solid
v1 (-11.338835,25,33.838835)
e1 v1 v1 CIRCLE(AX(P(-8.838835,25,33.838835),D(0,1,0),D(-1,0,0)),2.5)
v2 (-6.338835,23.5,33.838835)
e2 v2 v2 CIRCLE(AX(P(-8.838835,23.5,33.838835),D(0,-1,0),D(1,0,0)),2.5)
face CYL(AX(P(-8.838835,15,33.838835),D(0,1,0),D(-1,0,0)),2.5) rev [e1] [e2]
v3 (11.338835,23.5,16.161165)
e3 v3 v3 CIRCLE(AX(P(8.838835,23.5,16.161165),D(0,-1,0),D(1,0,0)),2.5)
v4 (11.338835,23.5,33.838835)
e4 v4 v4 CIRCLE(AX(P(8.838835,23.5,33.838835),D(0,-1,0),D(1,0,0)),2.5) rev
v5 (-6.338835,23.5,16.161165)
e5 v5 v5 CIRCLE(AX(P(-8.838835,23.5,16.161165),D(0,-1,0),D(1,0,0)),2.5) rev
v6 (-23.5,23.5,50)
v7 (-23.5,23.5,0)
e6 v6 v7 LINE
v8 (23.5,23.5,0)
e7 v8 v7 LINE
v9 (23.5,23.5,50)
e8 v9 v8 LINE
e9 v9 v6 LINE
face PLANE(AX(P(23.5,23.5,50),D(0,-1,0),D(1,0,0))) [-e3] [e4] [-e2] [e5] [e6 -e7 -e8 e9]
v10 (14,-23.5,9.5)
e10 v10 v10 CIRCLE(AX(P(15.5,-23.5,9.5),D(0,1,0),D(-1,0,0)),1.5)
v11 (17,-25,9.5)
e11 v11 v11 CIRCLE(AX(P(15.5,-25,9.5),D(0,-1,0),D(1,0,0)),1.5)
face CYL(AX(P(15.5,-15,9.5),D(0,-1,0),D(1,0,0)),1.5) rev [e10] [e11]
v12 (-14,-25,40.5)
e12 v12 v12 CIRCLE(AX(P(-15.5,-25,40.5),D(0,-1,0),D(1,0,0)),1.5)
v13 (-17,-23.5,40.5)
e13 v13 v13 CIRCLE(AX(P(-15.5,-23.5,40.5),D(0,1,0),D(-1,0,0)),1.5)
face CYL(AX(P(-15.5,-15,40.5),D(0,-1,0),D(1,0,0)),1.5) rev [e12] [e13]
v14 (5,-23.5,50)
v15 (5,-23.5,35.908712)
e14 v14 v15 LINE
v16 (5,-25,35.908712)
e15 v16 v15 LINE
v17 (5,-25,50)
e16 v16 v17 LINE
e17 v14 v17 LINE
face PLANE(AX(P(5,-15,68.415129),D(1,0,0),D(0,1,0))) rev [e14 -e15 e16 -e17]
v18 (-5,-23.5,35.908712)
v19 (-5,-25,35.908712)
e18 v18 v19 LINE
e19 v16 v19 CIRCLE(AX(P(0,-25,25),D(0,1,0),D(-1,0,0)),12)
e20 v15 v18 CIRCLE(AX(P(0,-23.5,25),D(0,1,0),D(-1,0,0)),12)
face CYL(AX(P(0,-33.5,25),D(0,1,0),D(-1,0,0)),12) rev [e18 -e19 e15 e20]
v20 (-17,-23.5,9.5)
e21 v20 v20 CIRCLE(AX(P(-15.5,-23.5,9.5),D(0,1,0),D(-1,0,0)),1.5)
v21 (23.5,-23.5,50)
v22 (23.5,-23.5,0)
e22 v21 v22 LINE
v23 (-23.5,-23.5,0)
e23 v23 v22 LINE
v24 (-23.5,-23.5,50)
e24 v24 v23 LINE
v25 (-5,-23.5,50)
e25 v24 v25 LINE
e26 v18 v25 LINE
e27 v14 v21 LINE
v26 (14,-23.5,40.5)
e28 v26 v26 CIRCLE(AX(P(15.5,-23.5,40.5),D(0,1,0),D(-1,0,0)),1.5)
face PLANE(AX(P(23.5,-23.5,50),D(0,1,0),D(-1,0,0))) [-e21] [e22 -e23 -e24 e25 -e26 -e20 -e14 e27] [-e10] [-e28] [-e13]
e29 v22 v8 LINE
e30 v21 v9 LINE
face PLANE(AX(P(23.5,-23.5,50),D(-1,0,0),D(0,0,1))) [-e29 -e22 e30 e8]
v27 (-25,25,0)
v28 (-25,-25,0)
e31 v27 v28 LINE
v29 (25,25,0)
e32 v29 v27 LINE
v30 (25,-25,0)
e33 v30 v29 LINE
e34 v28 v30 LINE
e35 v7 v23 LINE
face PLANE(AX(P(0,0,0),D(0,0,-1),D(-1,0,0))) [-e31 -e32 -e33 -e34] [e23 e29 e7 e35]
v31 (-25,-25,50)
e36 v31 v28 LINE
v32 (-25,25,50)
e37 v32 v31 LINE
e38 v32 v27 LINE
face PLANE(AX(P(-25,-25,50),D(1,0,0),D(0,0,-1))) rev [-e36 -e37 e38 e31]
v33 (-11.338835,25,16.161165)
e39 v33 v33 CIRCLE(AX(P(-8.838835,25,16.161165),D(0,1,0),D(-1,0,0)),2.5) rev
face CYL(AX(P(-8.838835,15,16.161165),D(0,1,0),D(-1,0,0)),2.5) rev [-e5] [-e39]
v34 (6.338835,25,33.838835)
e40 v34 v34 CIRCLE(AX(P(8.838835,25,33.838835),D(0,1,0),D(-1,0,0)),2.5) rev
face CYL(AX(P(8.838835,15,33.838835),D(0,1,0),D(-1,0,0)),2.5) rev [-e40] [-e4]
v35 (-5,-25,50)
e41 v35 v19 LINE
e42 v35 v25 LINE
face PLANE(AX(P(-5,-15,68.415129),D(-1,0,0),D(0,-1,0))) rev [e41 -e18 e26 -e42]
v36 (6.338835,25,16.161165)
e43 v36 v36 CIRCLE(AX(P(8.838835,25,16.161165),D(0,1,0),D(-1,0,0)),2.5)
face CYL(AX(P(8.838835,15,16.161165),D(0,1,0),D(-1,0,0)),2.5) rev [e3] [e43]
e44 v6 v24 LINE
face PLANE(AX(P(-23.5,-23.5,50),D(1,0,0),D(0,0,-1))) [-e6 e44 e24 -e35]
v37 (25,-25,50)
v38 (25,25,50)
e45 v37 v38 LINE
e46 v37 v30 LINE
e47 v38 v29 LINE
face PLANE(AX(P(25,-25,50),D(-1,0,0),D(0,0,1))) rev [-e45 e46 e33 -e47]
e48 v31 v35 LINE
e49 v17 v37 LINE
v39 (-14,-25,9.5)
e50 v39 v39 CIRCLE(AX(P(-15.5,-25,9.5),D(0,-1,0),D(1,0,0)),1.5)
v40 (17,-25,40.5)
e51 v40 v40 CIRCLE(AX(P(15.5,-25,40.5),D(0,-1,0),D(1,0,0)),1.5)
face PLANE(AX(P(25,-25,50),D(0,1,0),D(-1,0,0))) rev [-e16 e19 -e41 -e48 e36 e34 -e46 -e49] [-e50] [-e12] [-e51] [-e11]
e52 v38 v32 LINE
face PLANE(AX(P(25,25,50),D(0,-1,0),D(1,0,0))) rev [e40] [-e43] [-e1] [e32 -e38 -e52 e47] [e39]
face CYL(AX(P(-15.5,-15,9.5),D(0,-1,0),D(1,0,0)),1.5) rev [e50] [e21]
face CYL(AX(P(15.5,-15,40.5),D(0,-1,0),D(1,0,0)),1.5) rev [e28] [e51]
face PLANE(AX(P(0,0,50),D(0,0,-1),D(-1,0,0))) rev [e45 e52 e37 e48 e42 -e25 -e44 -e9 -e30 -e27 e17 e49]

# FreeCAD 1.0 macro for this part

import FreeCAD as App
import Part
import Sketcher

V = App.Vector


def add_polygon(sketch, points):
    """Adds a closed chain of lines whose ends are joined by coincident constraints."""
    first, n = sketch.GeometryCount, len(points)
    for a, b in zip(points, points[1:] + points[:1]):
        sketch.addGeometry(Part.LineSegment(App.Vector(*a, 0), App.Vector(*b, 0)), False)
    for i in range(n):
        sketch.addConstraint(Sketcher.Constraint("Coincident", first + i, 2, first + (i + 1) % n, 1))

doc = App.newDocument("Part")
body = doc.addObject("PartDesign::Body", "Body")

# Sketch on XY plane
sketch1 = body.newObject("Sketcher::SketchObject", "Sketch")
sketch1.AttachmentSupport = (doc.getObject("XY_Plane"), [""])
sketch1.MapMode = "FlatFace"
add_polygon(sketch1, [(-25, 25), (-25, -25), (25, -25), (25, 25)])  # lines 0-3
add_polygon(sketch1, [(23.5, -23.5), (-23.5, -23.5), (-23.5, 23.5), (23.5, 23.5)])  # lines 4-7
sketch1.addConstraint([
    Sketcher.Constraint("Vertical", 0),
    Sketcher.Constraint("Horizontal", 1),
    Sketcher.Constraint("Vertical", 2),
    Sketcher.Constraint("Horizontal", 3),
    Sketcher.Constraint("Horizontal", 4),
    Sketcher.Constraint("Vertical", 5),
    Sketcher.Constraint("Horizontal", 6),
    Sketcher.Constraint("Vertical", 7),
    Sketcher.Constraint("Symmetric", 0, 2, 2, 2, -1, 1),
    Sketcher.Constraint("Symmetric", 4, 2, 6, 2, -1, 1),
    Sketcher.Constraint("Equal", 3, 0),
    Sketcher.Constraint("Equal", 6, 5),
    Sketcher.Constraint("DistanceX", 1, 1, 1, 2, 50.0),
    Sketcher.Constraint("DistanceX", 4, 2, 4, 1, 47.0),
])
pad1 = body.newObject("PartDesign::Pad", "Pad")
pad1.Profile = sketch1
pad1.Length = 50

# Sketch on XZ plane
sketch2 = body.newObject("Sketcher::SketchObject", "Sketch001")
sketch2.AttachmentSupport = (doc.getObject("XZ_Plane"), [""])
sketch2.MapMode = "FlatFace"
sketch2.AttachmentOffset = App.Placement(V(0, 0, -25), App.Rotation())
sketch2.addGeometry([
    Part.Circle(V(-8.838835, 16.161165, 0), V(0, 0, 1), 2.5),
    Part.Circle(V(8.838835, 16.161165, 0), V(0, 0, 1), 2.5),
    Part.Circle(V(-8.838835, 33.838835, 0), V(0, 0, 1), 2.5),
    Part.Circle(V(8.838835, 33.838835, 0), V(0, 0, 1), 2.5),
], False)
sketch2.addConstraint([
    Sketcher.Constraint("Equal", 0, 1),
    Sketcher.Constraint("Equal", 1, 2),
    Sketcher.Constraint("Equal", 2, 3),
    Sketcher.Constraint("Symmetric", 0, 3, 1, 3, -2),
    Sketcher.Constraint("Symmetric", 2, 3, 3, 3, -2),
    Sketcher.Constraint("Vertical", 0, 3, 2, 3),
    Sketcher.Constraint("Diameter", 0, 5.0),
    Sketcher.Constraint("DistanceX", 0, 3, 1, 3, 17.67767),
    Sketcher.Constraint("DistanceY", 0, 3, 2, 3, 17.67767),
    Sketcher.Constraint("DistanceY", -1, 1, 0, 3, 16.161165),
])
pocket1 = body.newObject("PartDesign::Pocket", "Pocket")
pocket1.Profile = sketch2
pocket1.Length = 10
pocket1.Reversed = True

# Sketch on XZ plane
sketch3 = body.newObject("Sketcher::SketchObject", "Sketch002")
sketch3.AttachmentSupport = (doc.getObject("XZ_Plane"), [""])
sketch3.MapMode = "FlatFace"
sketch3.AttachmentOffset = App.Placement(V(0, 0, 23.5), App.Rotation())
sketch3.addGeometry(Part.Circle(V(0, 25, 0), V(0, 0, 1), 12), False)
sketch3.addConstraint([
    Sketcher.Constraint("PointOnObject", 0, 3, -2),
    Sketcher.Constraint("Diameter", 0, 24.0),
    Sketcher.Constraint("DistanceY", -1, 1, 0, 3, 25.0),
])
pocket2 = body.newObject("PartDesign::Pocket", "Pocket001")
pocket2.Profile = sketch3
pocket2.Length = 10
pocket2.Reversed = True

# Sketch on XZ plane
sketch4 = body.newObject("Sketcher::SketchObject", "Sketch003")
sketch4.AttachmentSupport = (doc.getObject("XZ_Plane"), [""])
sketch4.MapMode = "FlatFace"
sketch4.AttachmentOffset = App.Placement(V(0, 0, 25), App.Rotation())
sketch4.addGeometry([
    Part.Circle(V(15.5, 40.5, 0), V(0, 0, 1), 1.5),
    Part.Circle(V(15.5, 9.5, 0), V(0, 0, 1), 1.5),
    Part.Circle(V(-15.5, 40.5, 0), V(0, 0, 1), 1.5),
    Part.Circle(V(-15.5, 9.5, 0), V(0, 0, 1), 1.5),
], False)
sketch4.addConstraint([
    Sketcher.Constraint("Equal", 0, 1),
    Sketcher.Constraint("Equal", 1, 2),
    Sketcher.Constraint("Equal", 2, 3),
    Sketcher.Constraint("Symmetric", 0, 3, 2, 3, -2),
    Sketcher.Constraint("Symmetric", 1, 3, 3, 3, -2),
    Sketcher.Constraint("Vertical", 0, 3, 1, 3),
    Sketcher.Constraint("Diameter", 0, 3.0),
    Sketcher.Constraint("DistanceY", 1, 3, 0, 3, 31.0),
    Sketcher.Constraint("DistanceX", 2, 3, 0, 3, 31.0),
    Sketcher.Constraint("DistanceY", -1, 1, 0, 3, 40.5),
])
pocket3 = body.newObject("PartDesign::Pocket", "Pocket002")
pocket3.Profile = sketch4
pocket3.Length = 10

# Sketch on XZ plane
sketch5 = body.newObject("Sketcher::SketchObject", "Sketch004")
sketch5.AttachmentSupport = (doc.getObject("XZ_Plane"), [""])
sketch5.MapMode = "FlatFace"
sketch5.AttachmentOffset = App.Placement(V(0, 0, 25), App.Rotation())
add_polygon(sketch5, [(-5, 68.415129), (-5, 31.584871), (5, 31.584871), (5, 68.415129)])  # lines 0-3
sketch5.addConstraint([
    Sketcher.Constraint("Vertical", 0),
    Sketcher.Constraint("Horizontal", 1),
    Sketcher.Constraint("Vertical", 2),
    Sketcher.Constraint("Horizontal", 3),
    Sketcher.Constraint("DistanceX", 1, 1, 1, 2, 10.0),
    Sketcher.Constraint("DistanceX", 0, 2, -1, 1, 5.0),
    Sketcher.Constraint("DistanceY", 0, 2, 0, 1, 36.830258),
    Sketcher.Constraint("DistanceY", -1, 1, 0, 2, 31.584871),
])
pocket4 = body.newObject("PartDesign::Pocket", "Pocket003")
pocket4.Profile = sketch5
pocket4.Length = 10

doc.recompute()
